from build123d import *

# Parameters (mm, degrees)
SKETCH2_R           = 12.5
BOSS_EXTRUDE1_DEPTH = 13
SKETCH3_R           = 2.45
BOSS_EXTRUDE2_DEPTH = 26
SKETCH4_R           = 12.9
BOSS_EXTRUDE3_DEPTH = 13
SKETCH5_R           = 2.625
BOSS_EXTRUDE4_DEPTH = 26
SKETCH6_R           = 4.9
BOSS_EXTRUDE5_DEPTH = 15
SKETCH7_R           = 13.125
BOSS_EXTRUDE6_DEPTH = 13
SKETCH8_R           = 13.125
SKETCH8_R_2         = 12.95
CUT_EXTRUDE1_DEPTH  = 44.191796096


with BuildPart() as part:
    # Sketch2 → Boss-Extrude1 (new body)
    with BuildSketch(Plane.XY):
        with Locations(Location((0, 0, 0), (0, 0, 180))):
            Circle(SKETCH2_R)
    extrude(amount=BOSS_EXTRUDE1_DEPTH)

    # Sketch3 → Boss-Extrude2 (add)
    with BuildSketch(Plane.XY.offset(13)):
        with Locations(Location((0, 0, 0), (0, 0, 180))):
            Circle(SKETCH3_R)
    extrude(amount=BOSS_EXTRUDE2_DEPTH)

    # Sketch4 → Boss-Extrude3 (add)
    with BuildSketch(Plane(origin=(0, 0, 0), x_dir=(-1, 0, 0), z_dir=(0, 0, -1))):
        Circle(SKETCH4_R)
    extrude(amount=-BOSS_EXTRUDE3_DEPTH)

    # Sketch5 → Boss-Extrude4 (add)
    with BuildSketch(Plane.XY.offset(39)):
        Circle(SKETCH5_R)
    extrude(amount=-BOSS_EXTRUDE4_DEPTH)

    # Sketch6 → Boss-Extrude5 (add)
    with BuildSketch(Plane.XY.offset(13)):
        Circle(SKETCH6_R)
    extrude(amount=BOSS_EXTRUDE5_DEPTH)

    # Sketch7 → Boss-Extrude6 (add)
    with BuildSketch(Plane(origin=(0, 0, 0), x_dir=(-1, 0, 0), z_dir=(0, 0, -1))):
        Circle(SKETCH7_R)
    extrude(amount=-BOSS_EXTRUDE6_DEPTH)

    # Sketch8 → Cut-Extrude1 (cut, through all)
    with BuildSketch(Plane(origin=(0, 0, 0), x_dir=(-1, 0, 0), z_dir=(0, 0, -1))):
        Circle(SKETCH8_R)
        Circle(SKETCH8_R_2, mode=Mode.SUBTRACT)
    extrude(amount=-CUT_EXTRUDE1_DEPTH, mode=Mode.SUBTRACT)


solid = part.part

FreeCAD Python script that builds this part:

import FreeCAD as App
import Part
import Sketcher

V = App.Vector

doc = App.newDocument("Part")
body = doc.addObject("PartDesign::Body", "Body")

sketch1 = doc.addObject("Sketcher::SketchObject", "Sketch")
body.addObject(sketch1)
sketch1.AttachmentSupport = (doc.XY_Plane, [""])
sketch1.MapMode = "FlatFace"
sketch1.addGeometry(Part.Circle(V(0, 0, 0), V(0, 0, 1), 12.5), False)
sketch1.addConstraint([
    Sketcher.Constraint("Coincident", 0, 3, -1, 1),
    Sketcher.Constraint("Diameter", 0, 25.0),
])
pad1 = doc.addObject("PartDesign::Pad", "Pad")
body.addObject(pad1)
pad1.Profile = sketch1
pad1.Length = 13

sketch2 = doc.addObject("Sketcher::SketchObject", "Sketch001")
body.addObject(sketch2)
sketch2.AttachmentSupport = (doc.XY_Plane, [""])
sketch2.MapMode = "FlatFace"
sketch2.AttachmentOffset = App.Placement(V(0, 0, 13), App.Rotation())
sketch2.addGeometry(Part.Circle(V(0, 0, 0), V(0, 0, 1), 2.45), False)
sketch2.addConstraint([
    Sketcher.Constraint("Coincident", 0, 3, -1, 1),
    Sketcher.Constraint("Diameter", 0, 4.9),
])
pad2 = doc.addObject("PartDesign::Pad", "Pad001")
body.addObject(pad2)
pad2.Profile = sketch2
pad2.Length = 26

sketch3 = doc.addObject("Sketcher::SketchObject", "Sketch002")
body.addObject(sketch3)
sketch3.AttachmentSupport = (doc.XY_Plane, [""])
sketch3.MapMode = "FlatFace"
sketch3.addGeometry(Part.Circle(V(0, 0, 0), V(0, 0, 1), 12.9), False)
sketch3.addConstraint([
    Sketcher.Constraint("Coincident", 0, 3, -1, 1),
    Sketcher.Constraint("Diameter", 0, 25.8),
])
pad3 = doc.addObject("PartDesign::Pad", "Pad002")
body.addObject(pad3)
pad3.Profile = sketch3
pad3.Length = 13

sketch4 = doc.addObject("Sketcher::SketchObject", "Sketch003")
body.addObject(sketch4)
sketch4.AttachmentSupport = (doc.XY_Plane, [""])
sketch4.MapMode = "FlatFace"
sketch4.AttachmentOffset = App.Placement(V(0, 0, 39), App.Rotation())
sketch4.addGeometry(Part.Circle(V(0, 0, 0), V(0, 0, 1), 2.625), False)
sketch4.addConstraint([
    Sketcher.Constraint("Coincident", 0, 3, -1, 1),
    Sketcher.Constraint("Diameter", 0, 5.25),
])
pad4 = doc.addObject("PartDesign::Pad", "Pad003")
body.addObject(pad4)
pad4.Profile = sketch4
pad4.Length = 26
pad4.Reversed = True

sketch5 = doc.addObject("Sketcher::SketchObject", "Sketch004")
body.addObject(sketch5)
sketch5.AttachmentSupport = (doc.XY_Plane, [""])
sketch5.MapMode = "FlatFace"
sketch5.AttachmentOffset = App.Placement(V(0, 0, 13), App.Rotation())
sketch5.addGeometry(Part.Circle(V(0, 0, 0), V(0, 0, 1), 4.9), False)
sketch5.addConstraint([
    Sketcher.Constraint("Coincident", 0, 3, -1, 1),
    Sketcher.Constraint("Diameter", 0, 9.8),
])
pad5 = doc.addObject("PartDesign::Pad", "Pad004")
body.addObject(pad5)
pad5.Profile = sketch5
pad5.Length = 15

sketch6 = doc.addObject("Sketcher::SketchObject", "Sketch005")
body.addObject(sketch6)
sketch6.AttachmentSupport = (doc.XY_Plane, [""])
sketch6.MapMode = "FlatFace"
sketch6.addGeometry(Part.Circle(V(0, 0, 0), V(0, 0, 1), 13.125), False)
sketch6.addConstraint([
    Sketcher.Constraint("Coincident", 0, 3, -1, 1),
    Sketcher.Constraint("Diameter", 0, 26.25),
])
pad6 = doc.addObject("PartDesign::Pad", "Pad005")
body.addObject(pad6)
pad6.Profile = sketch6
pad6.Length = 13

sketch7 = doc.addObject("Sketcher::SketchObject", "Sketch006")
body.addObject(sketch7)
sketch7.AttachmentSupport = (doc.XY_Plane, [""])
sketch7.MapMode = "FlatFace"
sketch7.addGeometry([
    Part.Circle(V(0, 0, 0), V(0, 0, 1), 13.125),
    Part.Circle(V(0, 0, 0), V(0, 0, 1), 12.95),
], False)
sketch7.addConstraint([
    Sketcher.Constraint("Coincident", 0, 3, -1, 1),
    Sketcher.Constraint("Coincident", 1, 3, -1, 1),
    Sketcher.Constraint("Diameter", 1, 25.9),
    Sketcher.Constraint("Diameter", 0, 26.25),
])
pocket1 = doc.addObject("PartDesign::Pocket", "Pocket")
body.addObject(pocket1)
pocket1.Profile = sketch7
pocket1.Type = "ThroughAll"
pocket1.Reversed = True

doc.recompute()
